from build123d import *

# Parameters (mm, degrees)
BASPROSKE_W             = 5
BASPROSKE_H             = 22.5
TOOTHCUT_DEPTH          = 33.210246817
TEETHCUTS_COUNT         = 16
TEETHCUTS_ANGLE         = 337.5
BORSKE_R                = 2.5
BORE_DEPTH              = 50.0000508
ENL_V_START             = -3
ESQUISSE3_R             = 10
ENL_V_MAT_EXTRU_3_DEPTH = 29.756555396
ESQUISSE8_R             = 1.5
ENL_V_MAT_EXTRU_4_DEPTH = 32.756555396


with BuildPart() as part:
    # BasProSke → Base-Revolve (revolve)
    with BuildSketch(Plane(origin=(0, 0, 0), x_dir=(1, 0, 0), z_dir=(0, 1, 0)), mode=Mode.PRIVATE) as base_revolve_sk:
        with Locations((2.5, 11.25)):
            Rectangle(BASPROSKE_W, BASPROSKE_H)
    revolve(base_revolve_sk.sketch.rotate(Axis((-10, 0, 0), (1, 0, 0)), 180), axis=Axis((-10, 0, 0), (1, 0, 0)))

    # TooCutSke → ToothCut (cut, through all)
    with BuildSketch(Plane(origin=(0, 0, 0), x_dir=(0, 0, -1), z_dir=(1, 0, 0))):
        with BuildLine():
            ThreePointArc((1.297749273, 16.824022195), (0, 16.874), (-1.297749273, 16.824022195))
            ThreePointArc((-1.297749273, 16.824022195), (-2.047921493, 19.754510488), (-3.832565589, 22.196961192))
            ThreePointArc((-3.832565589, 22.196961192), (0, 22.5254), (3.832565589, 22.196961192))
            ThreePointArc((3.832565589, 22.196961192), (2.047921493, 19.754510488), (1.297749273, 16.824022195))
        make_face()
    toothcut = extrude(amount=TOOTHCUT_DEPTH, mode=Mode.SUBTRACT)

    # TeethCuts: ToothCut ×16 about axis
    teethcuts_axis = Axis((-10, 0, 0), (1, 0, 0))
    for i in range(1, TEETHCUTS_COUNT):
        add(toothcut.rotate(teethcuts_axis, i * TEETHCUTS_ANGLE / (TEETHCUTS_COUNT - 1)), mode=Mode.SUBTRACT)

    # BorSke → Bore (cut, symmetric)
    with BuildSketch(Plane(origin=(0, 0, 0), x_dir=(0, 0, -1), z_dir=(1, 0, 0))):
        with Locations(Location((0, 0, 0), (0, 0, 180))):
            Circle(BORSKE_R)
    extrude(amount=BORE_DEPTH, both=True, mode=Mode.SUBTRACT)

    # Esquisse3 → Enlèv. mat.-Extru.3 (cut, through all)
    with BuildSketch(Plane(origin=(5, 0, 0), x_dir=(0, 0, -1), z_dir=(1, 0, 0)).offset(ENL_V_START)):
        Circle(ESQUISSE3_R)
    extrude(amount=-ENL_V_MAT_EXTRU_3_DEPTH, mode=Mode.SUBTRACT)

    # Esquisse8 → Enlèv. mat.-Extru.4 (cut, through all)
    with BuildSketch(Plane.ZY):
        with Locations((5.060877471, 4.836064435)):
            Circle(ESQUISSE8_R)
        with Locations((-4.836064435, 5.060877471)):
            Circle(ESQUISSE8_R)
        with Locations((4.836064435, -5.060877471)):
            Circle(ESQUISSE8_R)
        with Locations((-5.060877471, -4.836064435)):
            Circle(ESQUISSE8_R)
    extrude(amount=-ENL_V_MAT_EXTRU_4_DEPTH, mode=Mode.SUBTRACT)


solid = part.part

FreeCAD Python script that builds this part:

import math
import FreeCAD as App
import Part
import Sketcher

V = App.Vector
Q = App.Units.Quantity


def add_polygon(sketch, points):
    """Adds a closed chain of lines whose ends are joined by coincident constraints."""
    first, n = sketch.GeometryCount, len(points)
    for a, b in zip(points, points[1:] + points[:1]):
        sketch.addGeometry(Part.LineSegment(App.Vector(*a, 0), App.Vector(*b, 0)), False)
    for i in range(n):
        sketch.addConstraint(Sketcher.Constraint("Coincident", first + i, 2, first + (i + 1) % n, 1))

doc = App.newDocument("Part")
params = doc.addObject("Spreadsheet::Sheet", "Params")
for row, (alias, value) in enumerate([
    ("sketch1_width", "5 mm"),
    ("sketch1_height", "22.5 mm"),
    ("revolution_angle", "360 deg"),
    ("sketch2_radius", "8 mm"),
    ("sketch3_diameter", "5 mm"),
    ("pocket2_length", "100.000102 mm"),
    ("sketch4_diameter", "20 mm"),
    ("sketch5_diameter", "3 mm"),
], start=1):
    params.set(f"A{row}", alias)
    params.set(f"B{row}", "=" + value)
    params.setAlias(f"B{row}", alias)

body = doc.addObject("PartDesign::Body", "Body")

# Sketch on XZ plane
sketch1 = doc.addObject("Sketcher::SketchObject", "Sketch")
body.addObject(sketch1)
sketch1.AttachmentSupport = (doc.XZ_Plane, [""])
sketch1.MapMode = "FlatFace"
add_polygon(sketch1, [(0, -22), (0, 0), (5, 0), (5, -22)])  # lines 0-3
sketch1.addConstraint([
    Sketcher.Constraint("Vertical", 0),
    Sketcher.Constraint("Horizontal", 1),
    Sketcher.Constraint("Vertical", 2),
    Sketcher.Constraint("Horizontal", 3),
    Sketcher.Constraint("Coincident", 0, 2, -1, 1),
    Sketcher.Constraint("DistanceX", 1, 1, 1, 2, Q("5 mm")),
    Sketcher.Constraint("DistanceY", 0, 1, 0, 2, Q("22.5 mm")),
])
sketch1.setExpression("Constraints[9]", "Params.sketch1_width")
sketch1.setExpression("Constraints[10]", "Params.sketch1_height")
revolution = doc.addObject("PartDesign::Revolution", "Revolution")
body.addObject(revolution)
revolution.Profile = sketch1
revolution.ReferenceAxis = (sketch1, ["H_Axis"])
revolution.setExpression("Angle", "Params.revolution_angle")

# Sketch on YZ plane
sketch2 = doc.addObject("Sketcher::SketchObject", "Sketch001")
body.addObject(sketch2)
sketch2.AttachmentSupport = (doc.YZ_Plane, [""])
sketch2.MapMode = "FlatFace"
sketch2.addGeometry([
    Part.ArcOfCircle(Part.Circle(V(0, 0, 0), V(0, 0, 1), 16.9), math.radians(-4.41), math.radians(4.41)),
    Part.ArcOfCircle(Part.Circle(V(16.3, -9.3, 0), V(0, 0, 1), 8), math.radians(43), math.radians(87)),
    Part.ArcOfCircle(Part.Circle(V(0, 0, 0), V(0, 0, 1), 22.5), math.radians(-9.8), math.radians(9.8)),
    Part.ArcOfCircle(Part.Circle(V(16.3, 9.3, 0), V(0, 0, 1), 8), math.radians(-87), math.radians(-43)),
], False)
sketch2.addConstraint([
    Sketcher.Constraint("Coincident", 0, 1, 1, 2),
    Sketcher.Constraint("Coincident", 1, 1, 2, 1),
    Sketcher.Constraint("Coincident", 2, 2, 3, 2),
    Sketcher.Constraint("Coincident", 3, 1, 0, 2),
    Sketcher.Constraint("Coincident", 0, 3, -1, 1),
    Sketcher.Constraint("Coincident", 2, 3, -1, 1),
    Sketcher.Constraint("Equal", 1, 3),
    Sketcher.Constraint("Symmetric", 1, 3, 3, 3, -1),
    Sketcher.Constraint("Radius", 1, Q("8 mm")),
    Sketcher.Constraint("Radius", 0, Q("16.874 mm")),
    Sketcher.Constraint("Radius", 2, Q("22.5254 mm")),
    Sketcher.Constraint("DistanceY", 0, 1, 3, 1, Q("2.595499 mm")),
    Sketcher.Constraint("DistanceX", -1, 1, 1, 3, Q("16.341108 mm")),
])
sketch2.setExpression("Constraints[8]", "Params.sketch2_radius")
pocket1 = doc.addObject("PartDesign::Pocket", "Pocket")
body.addObject(pocket1)
pocket1.Profile = sketch2
pocket1.Type = "ThroughAll"
pocket1.Reversed = True
doc.recompute()

polarpattern = doc.addObject("PartDesign::PolarPattern", "PolarPattern")
body.addObject(polarpattern)
polarpattern.Originals = [pocket1]
polarpattern.Axis = (doc.X_Axis, [""])
polarpattern.Angle = 360
polarpattern.Occurrences = 16
body.Tip = polarpattern

# Sketch on YZ plane
sketch3 = doc.addObject("Sketcher::SketchObject", "Sketch002")
body.addObject(sketch3)
sketch3.AttachmentSupport = (doc.YZ_Plane, [""])
sketch3.MapMode = "FlatFace"
sketch3.addGeometry(Part.Circle(V(0, 0, 0), V(0, 0, 1), 2.5), False)
sketch3.addConstraint([
    Sketcher.Constraint("Coincident", 0, 3, -1, 1),
    Sketcher.Constraint("Diameter", 0, Q("5 mm")),
])
sketch3.setExpression("Constraints[1]", "Params.sketch3_diameter")
pocket2 = doc.addObject("PartDesign::Pocket", "Pocket001")
body.addObject(pocket2)
pocket2.Profile = sketch3
pocket2.setExpression("Length", "Params.pocket2_length")
pocket2.Midplane = True

# Sketch on YZ plane
sketch4 = doc.addObject("Sketcher::SketchObject", "Sketch003")
body.addObject(sketch4)
sketch4.AttachmentSupport = (doc.YZ_Plane, [""])
sketch4.MapMode = "FlatFace"
sketch4.AttachmentOffset = App.Placement(V(0, 0, 2), App.Rotation())
sketch4.addGeometry(Part.Circle(V(0, 0, 0), V(0, 0, 1), 10), False)
sketch4.addConstraint([
    Sketcher.Constraint("Coincident", 0, 3, -1, 1),
    Sketcher.Constraint("Diameter", 0, Q("20 mm")),
])
sketch4.setExpression("Constraints[1]", "Params.sketch4_diameter")
pocket3 = doc.addObject("PartDesign::Pocket", "Pocket002")
body.addObject(pocket3)
pocket3.Profile = sketch4
pocket3.Type = "ThroughAll"

# Sketch on YZ plane
sketch5 = doc.addObject("Sketcher::SketchObject", "Sketch004")
body.addObject(sketch5)
sketch5.AttachmentSupport = (doc.YZ_Plane, [""])
sketch5.MapMode = "FlatFace"
sketch5.addGeometry([
    Part.Circle(V(4.8, 5.1, 0), V(0, 0, 1), 1.5),
    Part.Circle(V(5.1, -4.8, 0), V(0, 0, 1), 1.5),
    Part.Circle(V(-5.1, 4.8, 0), V(0, 0, 1), 1.5),
    Part.Circle(V(-4.8, -5.1, 0), V(0, 0, 1), 1.5),
], False)
sketch5.addConstraint([
    Sketcher.Constraint("Equal", 0, 1),
    Sketcher.Constraint("Equal", 1, 2),
    Sketcher.Constraint("Equal", 2, 3),
    Sketcher.Constraint("Symmetric", 1, 3, 2, 3, -1, 1),
    Sketcher.Constraint("Symmetric", 0, 3, 3, 3, -1, 1),
    Sketcher.Constraint("Diameter", 0, Q("3 mm")),
    Sketcher.Constraint("DistanceY", 1, 3, 0, 3, Q("9.896942 mm")),
    Sketcher.Constraint("DistanceX", 2, 3, 0, 3, Q("9.896942 mm")),
    Sketcher.Constraint("DistanceY", 1, 3, 2, 3, Q("9.672129 mm")),
    Sketcher.Constraint("DistanceX", 3, 3, 0, 3, Q("9.672129 mm")),
])
sketch5.setExpression("Constraints[5]", "Params.sketch5_diameter")
pocket4 = doc.addObject("PartDesign::Pocket", "Pocket003")
body.addObject(pocket4)
pocket4.Profile = sketch5
pocket4.Type = "ThroughAll"
pocket4.Reversed = True

doc.recompute()
